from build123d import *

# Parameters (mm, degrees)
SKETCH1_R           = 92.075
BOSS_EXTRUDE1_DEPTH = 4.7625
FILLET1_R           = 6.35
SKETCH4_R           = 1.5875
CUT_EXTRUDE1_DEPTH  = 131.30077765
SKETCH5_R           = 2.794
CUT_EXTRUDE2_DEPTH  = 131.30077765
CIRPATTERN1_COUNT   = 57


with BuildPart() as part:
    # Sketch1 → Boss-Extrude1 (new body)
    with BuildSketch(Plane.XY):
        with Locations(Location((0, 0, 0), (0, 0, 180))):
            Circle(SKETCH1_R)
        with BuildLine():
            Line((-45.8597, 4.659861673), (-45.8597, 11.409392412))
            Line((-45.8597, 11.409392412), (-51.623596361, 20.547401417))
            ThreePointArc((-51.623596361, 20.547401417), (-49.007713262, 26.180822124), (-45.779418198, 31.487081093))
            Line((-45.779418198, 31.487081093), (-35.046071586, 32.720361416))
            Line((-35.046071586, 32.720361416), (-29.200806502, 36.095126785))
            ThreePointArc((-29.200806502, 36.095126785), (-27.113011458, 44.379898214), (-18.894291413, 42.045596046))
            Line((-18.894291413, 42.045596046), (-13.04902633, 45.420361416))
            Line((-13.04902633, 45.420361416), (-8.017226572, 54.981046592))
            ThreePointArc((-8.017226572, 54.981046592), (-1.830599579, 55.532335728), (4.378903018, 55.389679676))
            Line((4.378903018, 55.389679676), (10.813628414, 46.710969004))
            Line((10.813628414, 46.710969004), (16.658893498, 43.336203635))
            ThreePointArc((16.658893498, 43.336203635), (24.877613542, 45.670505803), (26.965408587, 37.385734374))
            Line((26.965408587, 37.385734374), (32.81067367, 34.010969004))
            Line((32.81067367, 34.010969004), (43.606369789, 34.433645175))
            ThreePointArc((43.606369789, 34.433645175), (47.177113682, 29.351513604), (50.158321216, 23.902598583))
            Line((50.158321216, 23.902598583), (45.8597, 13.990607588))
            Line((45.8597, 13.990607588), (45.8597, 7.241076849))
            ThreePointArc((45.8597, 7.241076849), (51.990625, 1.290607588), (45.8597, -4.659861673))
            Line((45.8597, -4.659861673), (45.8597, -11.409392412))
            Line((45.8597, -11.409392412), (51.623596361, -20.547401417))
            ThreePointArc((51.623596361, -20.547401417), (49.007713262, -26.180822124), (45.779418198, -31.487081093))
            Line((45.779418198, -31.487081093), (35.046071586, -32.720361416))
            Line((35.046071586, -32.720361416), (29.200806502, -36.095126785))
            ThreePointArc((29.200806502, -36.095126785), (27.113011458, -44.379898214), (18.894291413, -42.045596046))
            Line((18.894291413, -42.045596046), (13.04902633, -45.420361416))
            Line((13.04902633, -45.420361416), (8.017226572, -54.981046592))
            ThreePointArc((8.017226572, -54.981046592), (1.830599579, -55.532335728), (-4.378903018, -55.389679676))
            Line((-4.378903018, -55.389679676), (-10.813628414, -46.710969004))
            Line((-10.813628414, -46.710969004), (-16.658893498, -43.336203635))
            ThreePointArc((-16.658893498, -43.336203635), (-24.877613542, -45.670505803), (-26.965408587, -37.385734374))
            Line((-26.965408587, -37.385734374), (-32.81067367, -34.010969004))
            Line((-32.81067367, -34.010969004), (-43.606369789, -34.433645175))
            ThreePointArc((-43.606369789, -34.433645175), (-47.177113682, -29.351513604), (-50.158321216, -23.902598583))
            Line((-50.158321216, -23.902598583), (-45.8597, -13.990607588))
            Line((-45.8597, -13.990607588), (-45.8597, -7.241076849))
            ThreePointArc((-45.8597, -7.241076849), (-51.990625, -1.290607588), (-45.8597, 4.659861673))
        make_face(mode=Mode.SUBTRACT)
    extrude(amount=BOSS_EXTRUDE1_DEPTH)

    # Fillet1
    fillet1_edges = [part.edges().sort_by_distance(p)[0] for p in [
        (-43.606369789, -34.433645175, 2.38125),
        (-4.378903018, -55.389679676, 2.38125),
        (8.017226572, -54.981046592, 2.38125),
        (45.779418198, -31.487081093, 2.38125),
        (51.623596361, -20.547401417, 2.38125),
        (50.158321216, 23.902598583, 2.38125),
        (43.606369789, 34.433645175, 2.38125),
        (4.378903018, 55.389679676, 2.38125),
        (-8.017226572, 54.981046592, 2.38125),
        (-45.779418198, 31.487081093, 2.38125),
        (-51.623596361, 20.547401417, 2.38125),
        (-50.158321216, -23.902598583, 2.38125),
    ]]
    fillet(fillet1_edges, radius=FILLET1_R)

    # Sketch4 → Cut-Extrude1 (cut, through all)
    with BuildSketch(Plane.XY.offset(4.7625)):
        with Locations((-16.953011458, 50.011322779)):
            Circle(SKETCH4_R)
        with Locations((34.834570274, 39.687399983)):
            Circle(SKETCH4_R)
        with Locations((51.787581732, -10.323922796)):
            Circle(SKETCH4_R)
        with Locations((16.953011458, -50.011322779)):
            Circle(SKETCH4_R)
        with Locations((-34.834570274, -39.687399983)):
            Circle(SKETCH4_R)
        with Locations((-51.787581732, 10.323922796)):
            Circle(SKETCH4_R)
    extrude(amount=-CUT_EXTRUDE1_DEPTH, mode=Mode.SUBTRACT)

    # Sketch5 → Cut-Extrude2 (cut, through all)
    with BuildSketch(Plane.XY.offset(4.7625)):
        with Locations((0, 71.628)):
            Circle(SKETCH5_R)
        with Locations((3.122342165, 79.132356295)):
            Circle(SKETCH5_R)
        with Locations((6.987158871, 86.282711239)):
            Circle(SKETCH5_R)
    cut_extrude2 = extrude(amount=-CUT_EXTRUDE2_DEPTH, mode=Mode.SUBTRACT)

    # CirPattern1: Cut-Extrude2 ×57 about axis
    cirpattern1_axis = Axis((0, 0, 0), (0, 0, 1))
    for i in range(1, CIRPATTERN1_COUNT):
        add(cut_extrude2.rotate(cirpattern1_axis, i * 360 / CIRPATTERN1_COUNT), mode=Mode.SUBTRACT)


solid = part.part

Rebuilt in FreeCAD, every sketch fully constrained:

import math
import FreeCAD as App
import Part
import Sketcher

V = App.Vector
Q = App.Units.Quantity


def edges_at(feature, points):
    """Names of the edges that pass closest to the given points."""
    edges = feature.Shape.Edges
    near = lambda p: min(range(len(edges)), key=lambda i: edges[i].distToShape(Part.Vertex(*p))[0])
    return sorted({f"Edge{near(p) + 1}" for p in points})

doc = App.newDocument("Part")
params = doc.addObject("Spreadsheet::Sheet", "Params")
for row, (alias, value) in enumerate([
    ("sketch1_diameter", "7.25 in"),
    ("sketch1_radius", "0.234375 in"),
    ("sketch1_radius2", "2.1875 in"),
    ("sketch1_width", "0.007 in"),
    ("pad1_length", "0.1875 in"),
    ("fillet_radius", "0.25 in"),
    ("sketch2_diameter", "0.125 in"),
    ("sketch3_diameter", "0.22 in"),
], start=1):
    params.set(f"A{row}", alias)
    params.set(f"B{row}", "=" + value)
    params.setAlias(f"B{row}", alias)

body = doc.addObject("PartDesign::Body", "Body")

# Sketch on XY plane
sketch1 = body.newObject("Sketcher::SketchObject", "Sketch")
sketch1.AttachmentSupport = (doc.getObject("XY_Plane"), [""])
sketch1.MapMode = "FlatFace"
sketch1.addGeometry(Part.Circle(V(0, 0, 0), V(0, 0, 1), 92.075), False)
sketch1.addGeometry(Part.ArcOfCircle(Part.Circle(V(-46.0375, -1.290608, 0), V(0, 0, 1), 5.953125), math.radians(88.288512), math.radians(271.711488)), False)
sketch1.addGeometry(Part.LineSegment(V(-45.8597, 4.659862, 0), V(-45.8597, 11.409392, 0)), False)
sketch1.addGeometry(Part.LineSegment(V(-45.8597, 11.409392, 0), V(-51.623596, 20.547401, 0)), False)
sketch1.addGeometry(Part.ArcOfCircle(Part.Circle(V(0, 0, 0), V(0, 0, 1), 55.5625), math.radians(145.479809), math.radians(158.296285)), False)
sketch1.addGeometry(Part.LineSegment(V(-45.779418, 31.487081, 0), V(-35.046072, 32.720361, 0)), False)
sketch1.addGeometry(Part.LineSegment(V(-35.046072, 32.720361, 0), V(-29.200807, 36.095127, 0)), False)
sketch1.addGeometry(Part.ArcOfCircle(Part.Circle(V(-24.136449, 39.224341, 0), V(0, 0, 1), 5.953125), math.radians(28.288512), math.radians(211.711488)), False)
sketch1.addGeometry(Part.LineSegment(V(-18.894291, 42.045596, 0), V(-13.049026, 45.420361, 0)), False)
sketch1.addGeometry(Part.LineSegment(V(-13.049026, 45.420361, 0), V(-8.017227, 54.981047, 0)), False)
sketch1.addGeometry(Part.ArcOfCircle(Part.Circle(V(0, 0, 0), V(0, 0, 1), 55.5625), math.radians(85.479809), math.radians(98.296285)), False)
sketch1.addGeometry(Part.LineSegment(V(4.378903, 55.38968, 0), V(10.813628, 46.710969, 0)), False)
sketch1.addGeometry(Part.LineSegment(V(10.813628, 46.710969, 0), V(16.658893, 43.336204, 0)), False)
sketch1.addGeometry(Part.ArcOfCircle(Part.Circle(V(21.901051, 40.514948, 0), V(0, 0, 1), 5.953125), math.radians(-31.711488), math.radians(151.711488)), False)
sketch1.addGeometry(Part.LineSegment(V(26.965409, 37.385734, 0), V(32.810674, 34.010969, 0)), False)
sketch1.addGeometry(Part.LineSegment(V(32.810674, 34.010969, 0), V(43.60637, 34.433645, 0)), False)
sketch1.addGeometry(Part.ArcOfCircle(Part.Circle(V(0, 0, 0), V(0, 0, 1), 55.5625), math.radians(25.479809), math.radians(38.296285)), False)
sketch1.addGeometry(Part.LineSegment(V(50.158321, 23.902599, 0), V(45.8597, 13.990608, 0)), False)
sketch1.addGeometry(Part.LineSegment(V(45.8597, 13.990608, 0), V(45.8597, 7.241077, 0)), False)
sketch1.addGeometry(Part.ArcOfCircle(Part.Circle(V(46.0375, 1.290608, 0), V(0, 0, 1), 5.953125), math.radians(-91.711488), math.radians(91.711488)), False)
sketch1.addGeometry(Part.LineSegment(V(45.8597, -4.659862, 0), V(45.8597, -11.409392, 0)), False)
sketch1.addGeometry(Part.LineSegment(V(45.8597, -11.409392, 0), V(51.623596, -20.547401, 0)), False)
sketch1.addGeometry(Part.ArcOfCircle(Part.Circle(V(0, 0, 0), V(0, 0, 1), 55.5625), math.radians(-34.520191), math.radians(-21.703715)), False)
sketch1.addGeometry(Part.LineSegment(V(45.779418, -31.487081, 0), V(35.046072, -32.720361, 0)), False)
sketch1.addGeometry(Part.LineSegment(V(35.046072, -32.720361, 0), V(29.200807, -36.095127, 0)), False)
sketch1.addGeometry(Part.ArcOfCircle(Part.Circle(V(24.136449, -39.224341, 0), V(0, 0, 1), 5.953125), math.radians(-151.711488), math.radians(31.711488)), False)
sketch1.addGeometry(Part.LineSegment(V(18.894291, -42.045596, 0), V(13.049026, -45.420361, 0)), False)
sketch1.addGeometry(Part.LineSegment(V(13.049026, -45.420361, 0), V(8.017227, -54.981047, 0)), False)
sketch1.addGeometry(Part.ArcOfCircle(Part.Circle(V(0, 0, 0), V(0, 0, 1), 55.5625), math.radians(-94.520191), math.radians(-81.703715)), False)
sketch1.addGeometry(Part.LineSegment(V(-4.378903, -55.38968, 0), V(-10.813628, -46.710969, 0)), False)
sketch1.addGeometry(Part.LineSegment(V(-10.813628, -46.710969, 0), V(-16.658893, -43.336204, 0)), False)
sketch1.addGeometry(Part.ArcOfCircle(Part.Circle(V(-21.901051, -40.514948, 0), V(0, 0, 1), 5.953125), math.radians(148.288512), math.radians(331.711488)), False)
sketch1.addGeometry(Part.LineSegment(V(-26.965409, -37.385734, 0), V(-32.810674, -34.010969, 0)), False)
sketch1.addGeometry(Part.LineSegment(V(-32.810674, -34.010969, 0), V(-43.60637, -34.433645, 0)), False)
sketch1.addGeometry(Part.ArcOfCircle(Part.Circle(V(0, 0, 0), V(0, 0, 1), 55.5625), math.radians(-154.520191), math.radians(-141.703715)), False)
sketch1.addGeometry(Part.LineSegment(V(-50.158321, -23.902599, 0), V(-45.8597, -13.990608, 0)), False)
sketch1.addGeometry(Part.LineSegment(V(-45.8597, -13.990608, 0), V(-45.8597, -7.241077, 0)), False)
sketch1.addConstraint(Sketcher.Constraint("Coincident", 1, 1, 2, 1))
sketch1.addConstraint(Sketcher.Constraint("Coincident", 2, 2, 3, 1))
sketch1.addConstraint(Sketcher.Constraint("Coincident", 3, 2, 4, 2))
sketch1.addConstraint(Sketcher.Constraint("Coincident", 4, 1, 5, 1))
sketch1.addConstraint(Sketcher.Constraint("Coincident", 5, 2, 6, 1))
sketch1.addConstraint(Sketcher.Constraint("Coincident", 6, 2, 7, 2))
sketch1.addConstraint(Sketcher.Constraint("Coincident", 7, 1, 8, 1))
sketch1.addConstraint(Sketcher.Constraint("Coincident", 8, 2, 9, 1))
sketch1.addConstraint(Sketcher.Constraint("Coincident", 9, 2, 10, 2))
sketch1.addConstraint(Sketcher.Constraint("Coincident", 10, 1, 11, 1))
sketch1.addConstraint(Sketcher.Constraint("Coincident", 11, 2, 12, 1))
sketch1.addConstraint(Sketcher.Constraint("Coincident", 12, 2, 13, 2))
sketch1.addConstraint(Sketcher.Constraint("Coincident", 13, 1, 14, 1))
sketch1.addConstraint(Sketcher.Constraint("Coincident", 14, 2, 15, 1))
sketch1.addConstraint(Sketcher.Constraint("Coincident", 15, 2, 16, 2))
sketch1.addConstraint(Sketcher.Constraint("Coincident", 16, 1, 17, 1))
sketch1.addConstraint(Sketcher.Constraint("Coincident", 17, 2, 18, 1))
sketch1.addConstraint(Sketcher.Constraint("Coincident", 18, 2, 19, 2))
sketch1.addConstraint(Sketcher.Constraint("Coincident", 19, 1, 20, 1))
sketch1.addConstraint(Sketcher.Constraint("Coincident", 20, 2, 21, 1))
sketch1.addConstraint(Sketcher.Constraint("Coincident", 21, 2, 22, 2))
sketch1.addConstraint(Sketcher.Constraint("Coincident", 22, 1, 23, 1))
sketch1.addConstraint(Sketcher.Constraint("Coincident", 23, 2, 24, 1))
sketch1.addConstraint(Sketcher.Constraint("Coincident", 24, 2, 25, 2))
sketch1.addConstraint(Sketcher.Constraint("Coincident", 25, 1, 26, 1))
sketch1.addConstraint(Sketcher.Constraint("Coincident", 26, 2, 27, 1))
sketch1.addConstraint(Sketcher.Constraint("Coincident", 27, 2, 28, 2))
sketch1.addConstraint(Sketcher.Constraint("Coincident", 28, 1, 29, 1))
sketch1.addConstraint(Sketcher.Constraint("Coincident", 29, 2, 30, 1))
sketch1.addConstraint(Sketcher.Constraint("Coincident", 30, 2, 31, 2))
sketch1.addConstraint(Sketcher.Constraint("Coincident", 31, 1, 32, 1))
sketch1.addConstraint(Sketcher.Constraint("Coincident", 32, 2, 33, 1))
sketch1.addConstraint(Sketcher.Constraint("Coincident", 33, 2, 34, 2))
sketch1.addConstraint(Sketcher.Constraint("Coincident", 34, 1, 35, 1))
sketch1.addConstraint(Sketcher.Constraint("Coincident", 35, 2, 36, 1))
sketch1.addConstraint(Sketcher.Constraint("Coincident", 36, 2, 1, 2))
sketch1.addConstraint(Sketcher.Constraint("Vertical", 2))
sketch1.addConstraint(Sketcher.Constraint("Vertical", 18))
sketch1.addConstraint(Sketcher.Constraint("Vertical", 20))
sketch1.addConstraint(Sketcher.Constraint("Vertical", 36))
sketch1.addConstraint(Sketcher.Constraint("Coincident", 0, 3, -1, 1))
sketch1.addConstraint(Sketcher.Constraint("Coincident", 4, 3, -1, 1))
sketch1.addConstraint(Sketcher.Constraint("Coincident", 10, 3, -1, 1))
sketch1.addConstraint(Sketcher.Constraint("Coincident", 16, 3, -1, 1))
sketch1.addConstraint(Sketcher.Constraint("Coincident", 22, 3, -1, 1))
sketch1.addConstraint(Sketcher.Constraint("Coincident", 28, 3, -1, 1))
sketch1.addConstraint(Sketcher.Constraint("Coincident", 34, 3, -1, 1))
sketch1.addConstraint(Sketcher.Constraint("Equal", 1, 7))
sketch1.addConstraint(Sketcher.Constraint("Equal", 4, 10))
sketch1.addConstraint(Sketcher.Constraint("Equal", 7, 13))
sketch1.addConstraint(Sketcher.Constraint("Equal", 10, 16))
sketch1.addConstraint(Sketcher.Constraint("Equal", 13, 19))
sketch1.addConstraint(Sketcher.Constraint("Equal", 16, 22))
sketch1.addConstraint(Sketcher.Constraint("Equal", 19, 25))
sketch1.addConstraint(Sketcher.Constraint("Equal", 22, 28))
sketch1.addConstraint(Sketcher.Constraint("Equal", 25, 31))
sketch1.addConstraint(Sketcher.Constraint("Equal", 28, 34))
sketch1.addConstraint(Sketcher.Constraint("Symmetric", 1, 3, 19, 3, -1, 1))
sketch1.addConstraint(Sketcher.Constraint("Symmetric", 7, 3, 25, 3, -1, 1))
sketch1.addConstraint(Sketcher.Constraint("Symmetric", 13, 3, 31, 3, -1, 1))
sketch1.addConstraint(Sketcher.Constraint("Symmetric", 2, 2, 20, 2, -1, 1))
sketch1.addConstraint(Sketcher.Constraint("Symmetric", 5, 2, 23, 2, -1, 1))
sketch1.addConstraint(Sketcher.Constraint("Symmetric", 8, 2, 26, 2, -1, 1))
sketch1.addConstraint(Sketcher.Constraint("Symmetric", 11, 2, 29, 2, -1, 1))
sketch1.addConstraint(Sketcher.Constraint("Symmetric", 14, 2, 32, 2, -1, 1))
sketch1.addConstraint(Sketcher.Constraint("Symmetric", 17, 2, 35, 2, -1, 1))
sketch1.addConstraint(Sketcher.Constraint("Parallel", 6, 8))
sketch1.addConstraint(Sketcher.Constraint("Parallel", 12, 14))
sketch1.addConstraint(Sketcher.Constraint("Parallel", 3, 21))
sketch1.addConstraint(Sketcher.Constraint("Parallel", 5, 23))
sketch1.addConstraint(Sketcher.Constraint("Parallel", 8, 24))
sketch1.addConstraint(Sketcher.Constraint("Parallel", 24, 26))
sketch1.addConstraint(Sketcher.Constraint("Parallel", 9, 27))
sketch1.addConstraint(Sketcher.Constraint("Parallel", 11, 29))
sketch1.addConstraint(Sketcher.Constraint("Parallel", 14, 30))
sketch1.addConstraint(Sketcher.Constraint("Parallel", 30, 32))
sketch1.addConstraint(Sketcher.Constraint("Parallel", 15, 33))
sketch1.addConstraint(Sketcher.Constraint("Parallel", 17, 35))
sketch1.addConstraint(Sketcher.Constraint("Vertical", 18, 2, 19, 1))
sketch1.addConstraint(Sketcher.Constraint("Equal", 2, 18))
sketch1.addConstraint(Sketcher.Constraint("Equal", 3, 5))
sketch1.addConstraint(Sketcher.Constraint("Equal", 6, 8))
sketch1.addConstraint(Sketcher.Constraint("Equal", 5, 9))
sketch1.addConstraint(Sketcher.Constraint("Equal", 9, 11))
sketch1.addConstraint(Sketcher.Constraint("Equal", 8, 12))
sketch1.addConstraint(Sketcher.Constraint("Equal", 12, 14))
sketch1.addConstraint(Sketcher.Constraint("Equal", 11, 15))
sketch1.addConstraint(Sketcher.Constraint("Equal", 15, 17))
sketch1.addConstraint(Sketcher.Constraint("Diameter", 0, Q("7.25 in")))
sketch1.addConstraint(Sketcher.Constraint("Angle", 6, Q("30 deg")))
sketch1.addConstraint(Sketcher.Constraint("Angle", 12, Q("-30 deg")))
sketch1.addConstraint(Sketcher.Constraint("Radius", 1, Q("0.234375 in")))
sketch1.addConstraint(Sketcher.Constraint("Radius", 4, Q("2.1875 in")))
sketch1.addConstraint(Sketcher.Constraint("DistanceY", 20, 2, 17, 2, Q("1 in")))
sketch1.addConstraint(Sketcher.Constraint("DistanceY", 5, 2, 8, 2, Q("0.5 in")))
sketch1.addConstraint(Sketcher.Constraint("DistanceY", 14, 2, 11, 2, Q("0.5 in")))
sketch1.addConstraint(Sketcher.Constraint("DistanceX", 1, 3, -1, 1, Q("1.8125 in")))
sketch1.addConstraint(Sketcher.Constraint("DistanceX", 7, 3, 13, 3, Q("1.8125 in")))
sketch1.addConstraint(Sketcher.Constraint("DistanceX", 1, 3, 1, 1, Q("0.007 in")))
sketch1.addConstraint(Sketcher.Constraint("DistanceY", -1, 1, 3, 2, 20.547401))
sketch1.addConstraint(Sketcher.Constraint("DistanceY", -1, 1, 16, 1, 23.902599))
sketch1.addConstraint(Sketcher.Constraint("DistanceY", 1, 1, 5, 2, 28.0605))
sketch1.addConstraint(Sketcher.Constraint("DistanceX", 8, 2, 9, 2, 5.0318))
sketch1.addConstraint(Sketcher.Constraint("DistanceY", 13, 3, 9, 2, 14.466098))
sketch1.addConstraint(Sketcher.Constraint("Distance", 6, 6.749531))
sketch1.addConstraint(Sketcher.Constraint("DistanceX", 7, 3, -1, 1, 24.136449))
sketch1.addConstraint(Sketcher.Constraint("DistanceY", -1, 1, 10, 1, 55.38968))
sketch1.setExpression("Constraints[88]", "Params.sketch1_diameter")
sketch1.setExpression("Constraints[91]", "Params.sketch1_radius")
sketch1.setExpression("Constraints[92]", "Params.sketch1_radius2")
sketch1.setExpression("Constraints[98]", "Params.sketch1_width")
pad1 = body.newObject("PartDesign::Pad", "Pad")
pad1.Profile = sketch1
pad1.setExpression("Length", "Params.pad1_length")
doc.recompute()

fillet = body.newObject("PartDesign::Fillet", "Fillet")
fillet.Base = (pad1, edges_at(pad1, [
    (-43.606, -34.434, 2.381),
    (-4.379, -55.39, 2.381),
    (8.017, -54.981, 2.381),
    (45.779, -31.487, 2.381),
    (51.624, -20.547, 2.381),
    (50.158, 23.903, 2.381),
    (43.606, 34.434, 2.381),
    (4.379, 55.39, 2.381),
    (-8.017, 54.981, 2.381),
    (-45.779, 31.487, 2.381),
    (-51.624, 20.547, 2.381),
    (-50.158, -23.903, 2.381),
]))
fillet.setExpression("Radius", "Params.fillet_radius")

# Sketch on XY plane
sketch2 = body.newObject("Sketcher::SketchObject", "Sketch001")
sketch2.AttachmentSupport = (doc.getObject("XY_Plane"), [""])
sketch2.MapMode = "FlatFace"
sketch2.AttachmentOffset = App.Placement(V(0, 0, 0.1875 * 25.4), App.Rotation())
sketch2.addGeometry(Part.Circle(V(-16.953011, 50.011323, 0), V(0, 0, 1), 1.5875), False)
sketch2.addGeometry(Part.Circle(V(34.83457, 39.6874, 0), V(0, 0, 1), 1.5875), False)
sketch2.addGeometry(Part.Circle(V(51.787582, -10.323923, 0), V(0, 0, 1), 1.5875), False)
sketch2.addGeometry(Part.Circle(V(16.953011, -50.011323, 0), V(0, 0, 1), 1.5875), False)
sketch2.addGeometry(Part.Circle(V(-34.83457, -39.6874, 0), V(0, 0, 1), 1.5875), False)
sketch2.addGeometry(Part.Circle(V(-51.787582, 10.323923, 0), V(0, 0, 1), 1.5875), False)
sketch2.addConstraint(Sketcher.Constraint("Equal", 0, 1))
sketch2.addConstraint(Sketcher.Constraint("Equal", 1, 2))
sketch2.addConstraint(Sketcher.Constraint("Equal", 2, 3))
sketch2.addConstraint(Sketcher.Constraint("Equal", 3, 4))
sketch2.addConstraint(Sketcher.Constraint("Equal", 4, 5))
sketch2.addConstraint(Sketcher.Constraint("Symmetric", 0, 3, 3, 3, -1, 1))
sketch2.addConstraint(Sketcher.Constraint("Symmetric", 1, 3, 4, 3, -1, 1))
sketch2.addConstraint(Sketcher.Constraint("Symmetric", 2, 3, 5, 3, -1, 1))
sketch2.addConstraint(Sketcher.Constraint("Diameter", 0, Q("0.125 in")))
sketch2.addConstraint(Sketcher.Constraint("DistanceY", -1, 1, 1, 3, 39.6874))
sketch2.addConstraint(Sketcher.Constraint("DistanceY", 3, 3, 2, 3, 39.6874))
sketch2.addConstraint(Sketcher.Constraint("DistanceX", 0, 3, -1, 1, 16.953011))
sketch2.addConstraint(Sketcher.Constraint("DistanceX", -1, 1, 1, 3, 34.83457))
sketch2.addConstraint(Sketcher.Constraint("DistanceX", -1, 1, 2, 3, 51.787582))
sketch2.addConstraint(Sketcher.Constraint("DistanceY", -1, 1, 0, 3, 50.011323))
sketch2.setExpression("Constraints[8]", "Params.sketch2_diameter")
pocket1 = body.newObject("PartDesign::Pocket", "Pocket")
pocket1.Profile = sketch2
pocket1.Type = "ThroughAll"

# Sketch on XY plane
sketch3 = body.newObject("Sketcher::SketchObject", "Sketch002")
sketch3.AttachmentSupport = (doc.getObject("XY_Plane"), [""])
sketch3.MapMode = "FlatFace"
sketch3.AttachmentOffset = App.Placement(V(0, 0, 0.1875 * 25.4), App.Rotation())
sketch3.addGeometry(Part.Circle(V(0, 71.628, 0), V(0, 0, 1), 2.794), False)
sketch3.addGeometry(Part.Circle(V(3.122342, 79.132356, 0), V(0, 0, 1), 2.794), False)
sketch3.addGeometry(Part.Circle(V(6.987159, 86.282711, 0), V(0, 0, 1), 2.794), False)
sketch3.addConstraint(Sketcher.Constraint("Equal", 0, 1))
sketch3.addConstraint(Sketcher.Constraint("Equal", 1, 2))
sketch3.addConstraint(Sketcher.Constraint("PointOnObject", 0, 3, -2))
sketch3.addConstraint(Sketcher.Constraint("Diameter", 0, Q("0.22 in")))
sketch3.addConstraint(Sketcher.Constraint("DistanceY", -1, 1, 0, 3, Q("2.82 in")))
sketch3.addConstraint(Sketcher.Constraint("DistanceX", -1, 1, 2, 3, 6.987159))
sketch3.addConstraint(Sketcher.Constraint("DistanceY", -1, 1, 2, 3, 86.282711))
sketch3.addConstraint(Sketcher.Constraint("DistanceX", -1, 1, 1, 3, 3.122342))
sketch3.addConstraint(Sketcher.Constraint("DistanceY", -1, 1, 1, 3, 79.132356))
sketch3.setExpression("Constraints[3]", "Params.sketch3_diameter")
pocket2 = body.newObject("PartDesign::Pocket", "Pocket001")
pocket2.Profile = sketch3
pocket2.Type = "ThroughAll"
doc.recompute()

polarpattern = body.newObject("PartDesign::PolarPattern", "PolarPattern")
polarpattern.Originals = [pocket2]
polarpattern.Axis = (doc.getObject("Z_Axis"), [""])
polarpattern.Angle = 360
polarpattern.Occurrences = 57
body.Tip = polarpattern

doc.recompute()
